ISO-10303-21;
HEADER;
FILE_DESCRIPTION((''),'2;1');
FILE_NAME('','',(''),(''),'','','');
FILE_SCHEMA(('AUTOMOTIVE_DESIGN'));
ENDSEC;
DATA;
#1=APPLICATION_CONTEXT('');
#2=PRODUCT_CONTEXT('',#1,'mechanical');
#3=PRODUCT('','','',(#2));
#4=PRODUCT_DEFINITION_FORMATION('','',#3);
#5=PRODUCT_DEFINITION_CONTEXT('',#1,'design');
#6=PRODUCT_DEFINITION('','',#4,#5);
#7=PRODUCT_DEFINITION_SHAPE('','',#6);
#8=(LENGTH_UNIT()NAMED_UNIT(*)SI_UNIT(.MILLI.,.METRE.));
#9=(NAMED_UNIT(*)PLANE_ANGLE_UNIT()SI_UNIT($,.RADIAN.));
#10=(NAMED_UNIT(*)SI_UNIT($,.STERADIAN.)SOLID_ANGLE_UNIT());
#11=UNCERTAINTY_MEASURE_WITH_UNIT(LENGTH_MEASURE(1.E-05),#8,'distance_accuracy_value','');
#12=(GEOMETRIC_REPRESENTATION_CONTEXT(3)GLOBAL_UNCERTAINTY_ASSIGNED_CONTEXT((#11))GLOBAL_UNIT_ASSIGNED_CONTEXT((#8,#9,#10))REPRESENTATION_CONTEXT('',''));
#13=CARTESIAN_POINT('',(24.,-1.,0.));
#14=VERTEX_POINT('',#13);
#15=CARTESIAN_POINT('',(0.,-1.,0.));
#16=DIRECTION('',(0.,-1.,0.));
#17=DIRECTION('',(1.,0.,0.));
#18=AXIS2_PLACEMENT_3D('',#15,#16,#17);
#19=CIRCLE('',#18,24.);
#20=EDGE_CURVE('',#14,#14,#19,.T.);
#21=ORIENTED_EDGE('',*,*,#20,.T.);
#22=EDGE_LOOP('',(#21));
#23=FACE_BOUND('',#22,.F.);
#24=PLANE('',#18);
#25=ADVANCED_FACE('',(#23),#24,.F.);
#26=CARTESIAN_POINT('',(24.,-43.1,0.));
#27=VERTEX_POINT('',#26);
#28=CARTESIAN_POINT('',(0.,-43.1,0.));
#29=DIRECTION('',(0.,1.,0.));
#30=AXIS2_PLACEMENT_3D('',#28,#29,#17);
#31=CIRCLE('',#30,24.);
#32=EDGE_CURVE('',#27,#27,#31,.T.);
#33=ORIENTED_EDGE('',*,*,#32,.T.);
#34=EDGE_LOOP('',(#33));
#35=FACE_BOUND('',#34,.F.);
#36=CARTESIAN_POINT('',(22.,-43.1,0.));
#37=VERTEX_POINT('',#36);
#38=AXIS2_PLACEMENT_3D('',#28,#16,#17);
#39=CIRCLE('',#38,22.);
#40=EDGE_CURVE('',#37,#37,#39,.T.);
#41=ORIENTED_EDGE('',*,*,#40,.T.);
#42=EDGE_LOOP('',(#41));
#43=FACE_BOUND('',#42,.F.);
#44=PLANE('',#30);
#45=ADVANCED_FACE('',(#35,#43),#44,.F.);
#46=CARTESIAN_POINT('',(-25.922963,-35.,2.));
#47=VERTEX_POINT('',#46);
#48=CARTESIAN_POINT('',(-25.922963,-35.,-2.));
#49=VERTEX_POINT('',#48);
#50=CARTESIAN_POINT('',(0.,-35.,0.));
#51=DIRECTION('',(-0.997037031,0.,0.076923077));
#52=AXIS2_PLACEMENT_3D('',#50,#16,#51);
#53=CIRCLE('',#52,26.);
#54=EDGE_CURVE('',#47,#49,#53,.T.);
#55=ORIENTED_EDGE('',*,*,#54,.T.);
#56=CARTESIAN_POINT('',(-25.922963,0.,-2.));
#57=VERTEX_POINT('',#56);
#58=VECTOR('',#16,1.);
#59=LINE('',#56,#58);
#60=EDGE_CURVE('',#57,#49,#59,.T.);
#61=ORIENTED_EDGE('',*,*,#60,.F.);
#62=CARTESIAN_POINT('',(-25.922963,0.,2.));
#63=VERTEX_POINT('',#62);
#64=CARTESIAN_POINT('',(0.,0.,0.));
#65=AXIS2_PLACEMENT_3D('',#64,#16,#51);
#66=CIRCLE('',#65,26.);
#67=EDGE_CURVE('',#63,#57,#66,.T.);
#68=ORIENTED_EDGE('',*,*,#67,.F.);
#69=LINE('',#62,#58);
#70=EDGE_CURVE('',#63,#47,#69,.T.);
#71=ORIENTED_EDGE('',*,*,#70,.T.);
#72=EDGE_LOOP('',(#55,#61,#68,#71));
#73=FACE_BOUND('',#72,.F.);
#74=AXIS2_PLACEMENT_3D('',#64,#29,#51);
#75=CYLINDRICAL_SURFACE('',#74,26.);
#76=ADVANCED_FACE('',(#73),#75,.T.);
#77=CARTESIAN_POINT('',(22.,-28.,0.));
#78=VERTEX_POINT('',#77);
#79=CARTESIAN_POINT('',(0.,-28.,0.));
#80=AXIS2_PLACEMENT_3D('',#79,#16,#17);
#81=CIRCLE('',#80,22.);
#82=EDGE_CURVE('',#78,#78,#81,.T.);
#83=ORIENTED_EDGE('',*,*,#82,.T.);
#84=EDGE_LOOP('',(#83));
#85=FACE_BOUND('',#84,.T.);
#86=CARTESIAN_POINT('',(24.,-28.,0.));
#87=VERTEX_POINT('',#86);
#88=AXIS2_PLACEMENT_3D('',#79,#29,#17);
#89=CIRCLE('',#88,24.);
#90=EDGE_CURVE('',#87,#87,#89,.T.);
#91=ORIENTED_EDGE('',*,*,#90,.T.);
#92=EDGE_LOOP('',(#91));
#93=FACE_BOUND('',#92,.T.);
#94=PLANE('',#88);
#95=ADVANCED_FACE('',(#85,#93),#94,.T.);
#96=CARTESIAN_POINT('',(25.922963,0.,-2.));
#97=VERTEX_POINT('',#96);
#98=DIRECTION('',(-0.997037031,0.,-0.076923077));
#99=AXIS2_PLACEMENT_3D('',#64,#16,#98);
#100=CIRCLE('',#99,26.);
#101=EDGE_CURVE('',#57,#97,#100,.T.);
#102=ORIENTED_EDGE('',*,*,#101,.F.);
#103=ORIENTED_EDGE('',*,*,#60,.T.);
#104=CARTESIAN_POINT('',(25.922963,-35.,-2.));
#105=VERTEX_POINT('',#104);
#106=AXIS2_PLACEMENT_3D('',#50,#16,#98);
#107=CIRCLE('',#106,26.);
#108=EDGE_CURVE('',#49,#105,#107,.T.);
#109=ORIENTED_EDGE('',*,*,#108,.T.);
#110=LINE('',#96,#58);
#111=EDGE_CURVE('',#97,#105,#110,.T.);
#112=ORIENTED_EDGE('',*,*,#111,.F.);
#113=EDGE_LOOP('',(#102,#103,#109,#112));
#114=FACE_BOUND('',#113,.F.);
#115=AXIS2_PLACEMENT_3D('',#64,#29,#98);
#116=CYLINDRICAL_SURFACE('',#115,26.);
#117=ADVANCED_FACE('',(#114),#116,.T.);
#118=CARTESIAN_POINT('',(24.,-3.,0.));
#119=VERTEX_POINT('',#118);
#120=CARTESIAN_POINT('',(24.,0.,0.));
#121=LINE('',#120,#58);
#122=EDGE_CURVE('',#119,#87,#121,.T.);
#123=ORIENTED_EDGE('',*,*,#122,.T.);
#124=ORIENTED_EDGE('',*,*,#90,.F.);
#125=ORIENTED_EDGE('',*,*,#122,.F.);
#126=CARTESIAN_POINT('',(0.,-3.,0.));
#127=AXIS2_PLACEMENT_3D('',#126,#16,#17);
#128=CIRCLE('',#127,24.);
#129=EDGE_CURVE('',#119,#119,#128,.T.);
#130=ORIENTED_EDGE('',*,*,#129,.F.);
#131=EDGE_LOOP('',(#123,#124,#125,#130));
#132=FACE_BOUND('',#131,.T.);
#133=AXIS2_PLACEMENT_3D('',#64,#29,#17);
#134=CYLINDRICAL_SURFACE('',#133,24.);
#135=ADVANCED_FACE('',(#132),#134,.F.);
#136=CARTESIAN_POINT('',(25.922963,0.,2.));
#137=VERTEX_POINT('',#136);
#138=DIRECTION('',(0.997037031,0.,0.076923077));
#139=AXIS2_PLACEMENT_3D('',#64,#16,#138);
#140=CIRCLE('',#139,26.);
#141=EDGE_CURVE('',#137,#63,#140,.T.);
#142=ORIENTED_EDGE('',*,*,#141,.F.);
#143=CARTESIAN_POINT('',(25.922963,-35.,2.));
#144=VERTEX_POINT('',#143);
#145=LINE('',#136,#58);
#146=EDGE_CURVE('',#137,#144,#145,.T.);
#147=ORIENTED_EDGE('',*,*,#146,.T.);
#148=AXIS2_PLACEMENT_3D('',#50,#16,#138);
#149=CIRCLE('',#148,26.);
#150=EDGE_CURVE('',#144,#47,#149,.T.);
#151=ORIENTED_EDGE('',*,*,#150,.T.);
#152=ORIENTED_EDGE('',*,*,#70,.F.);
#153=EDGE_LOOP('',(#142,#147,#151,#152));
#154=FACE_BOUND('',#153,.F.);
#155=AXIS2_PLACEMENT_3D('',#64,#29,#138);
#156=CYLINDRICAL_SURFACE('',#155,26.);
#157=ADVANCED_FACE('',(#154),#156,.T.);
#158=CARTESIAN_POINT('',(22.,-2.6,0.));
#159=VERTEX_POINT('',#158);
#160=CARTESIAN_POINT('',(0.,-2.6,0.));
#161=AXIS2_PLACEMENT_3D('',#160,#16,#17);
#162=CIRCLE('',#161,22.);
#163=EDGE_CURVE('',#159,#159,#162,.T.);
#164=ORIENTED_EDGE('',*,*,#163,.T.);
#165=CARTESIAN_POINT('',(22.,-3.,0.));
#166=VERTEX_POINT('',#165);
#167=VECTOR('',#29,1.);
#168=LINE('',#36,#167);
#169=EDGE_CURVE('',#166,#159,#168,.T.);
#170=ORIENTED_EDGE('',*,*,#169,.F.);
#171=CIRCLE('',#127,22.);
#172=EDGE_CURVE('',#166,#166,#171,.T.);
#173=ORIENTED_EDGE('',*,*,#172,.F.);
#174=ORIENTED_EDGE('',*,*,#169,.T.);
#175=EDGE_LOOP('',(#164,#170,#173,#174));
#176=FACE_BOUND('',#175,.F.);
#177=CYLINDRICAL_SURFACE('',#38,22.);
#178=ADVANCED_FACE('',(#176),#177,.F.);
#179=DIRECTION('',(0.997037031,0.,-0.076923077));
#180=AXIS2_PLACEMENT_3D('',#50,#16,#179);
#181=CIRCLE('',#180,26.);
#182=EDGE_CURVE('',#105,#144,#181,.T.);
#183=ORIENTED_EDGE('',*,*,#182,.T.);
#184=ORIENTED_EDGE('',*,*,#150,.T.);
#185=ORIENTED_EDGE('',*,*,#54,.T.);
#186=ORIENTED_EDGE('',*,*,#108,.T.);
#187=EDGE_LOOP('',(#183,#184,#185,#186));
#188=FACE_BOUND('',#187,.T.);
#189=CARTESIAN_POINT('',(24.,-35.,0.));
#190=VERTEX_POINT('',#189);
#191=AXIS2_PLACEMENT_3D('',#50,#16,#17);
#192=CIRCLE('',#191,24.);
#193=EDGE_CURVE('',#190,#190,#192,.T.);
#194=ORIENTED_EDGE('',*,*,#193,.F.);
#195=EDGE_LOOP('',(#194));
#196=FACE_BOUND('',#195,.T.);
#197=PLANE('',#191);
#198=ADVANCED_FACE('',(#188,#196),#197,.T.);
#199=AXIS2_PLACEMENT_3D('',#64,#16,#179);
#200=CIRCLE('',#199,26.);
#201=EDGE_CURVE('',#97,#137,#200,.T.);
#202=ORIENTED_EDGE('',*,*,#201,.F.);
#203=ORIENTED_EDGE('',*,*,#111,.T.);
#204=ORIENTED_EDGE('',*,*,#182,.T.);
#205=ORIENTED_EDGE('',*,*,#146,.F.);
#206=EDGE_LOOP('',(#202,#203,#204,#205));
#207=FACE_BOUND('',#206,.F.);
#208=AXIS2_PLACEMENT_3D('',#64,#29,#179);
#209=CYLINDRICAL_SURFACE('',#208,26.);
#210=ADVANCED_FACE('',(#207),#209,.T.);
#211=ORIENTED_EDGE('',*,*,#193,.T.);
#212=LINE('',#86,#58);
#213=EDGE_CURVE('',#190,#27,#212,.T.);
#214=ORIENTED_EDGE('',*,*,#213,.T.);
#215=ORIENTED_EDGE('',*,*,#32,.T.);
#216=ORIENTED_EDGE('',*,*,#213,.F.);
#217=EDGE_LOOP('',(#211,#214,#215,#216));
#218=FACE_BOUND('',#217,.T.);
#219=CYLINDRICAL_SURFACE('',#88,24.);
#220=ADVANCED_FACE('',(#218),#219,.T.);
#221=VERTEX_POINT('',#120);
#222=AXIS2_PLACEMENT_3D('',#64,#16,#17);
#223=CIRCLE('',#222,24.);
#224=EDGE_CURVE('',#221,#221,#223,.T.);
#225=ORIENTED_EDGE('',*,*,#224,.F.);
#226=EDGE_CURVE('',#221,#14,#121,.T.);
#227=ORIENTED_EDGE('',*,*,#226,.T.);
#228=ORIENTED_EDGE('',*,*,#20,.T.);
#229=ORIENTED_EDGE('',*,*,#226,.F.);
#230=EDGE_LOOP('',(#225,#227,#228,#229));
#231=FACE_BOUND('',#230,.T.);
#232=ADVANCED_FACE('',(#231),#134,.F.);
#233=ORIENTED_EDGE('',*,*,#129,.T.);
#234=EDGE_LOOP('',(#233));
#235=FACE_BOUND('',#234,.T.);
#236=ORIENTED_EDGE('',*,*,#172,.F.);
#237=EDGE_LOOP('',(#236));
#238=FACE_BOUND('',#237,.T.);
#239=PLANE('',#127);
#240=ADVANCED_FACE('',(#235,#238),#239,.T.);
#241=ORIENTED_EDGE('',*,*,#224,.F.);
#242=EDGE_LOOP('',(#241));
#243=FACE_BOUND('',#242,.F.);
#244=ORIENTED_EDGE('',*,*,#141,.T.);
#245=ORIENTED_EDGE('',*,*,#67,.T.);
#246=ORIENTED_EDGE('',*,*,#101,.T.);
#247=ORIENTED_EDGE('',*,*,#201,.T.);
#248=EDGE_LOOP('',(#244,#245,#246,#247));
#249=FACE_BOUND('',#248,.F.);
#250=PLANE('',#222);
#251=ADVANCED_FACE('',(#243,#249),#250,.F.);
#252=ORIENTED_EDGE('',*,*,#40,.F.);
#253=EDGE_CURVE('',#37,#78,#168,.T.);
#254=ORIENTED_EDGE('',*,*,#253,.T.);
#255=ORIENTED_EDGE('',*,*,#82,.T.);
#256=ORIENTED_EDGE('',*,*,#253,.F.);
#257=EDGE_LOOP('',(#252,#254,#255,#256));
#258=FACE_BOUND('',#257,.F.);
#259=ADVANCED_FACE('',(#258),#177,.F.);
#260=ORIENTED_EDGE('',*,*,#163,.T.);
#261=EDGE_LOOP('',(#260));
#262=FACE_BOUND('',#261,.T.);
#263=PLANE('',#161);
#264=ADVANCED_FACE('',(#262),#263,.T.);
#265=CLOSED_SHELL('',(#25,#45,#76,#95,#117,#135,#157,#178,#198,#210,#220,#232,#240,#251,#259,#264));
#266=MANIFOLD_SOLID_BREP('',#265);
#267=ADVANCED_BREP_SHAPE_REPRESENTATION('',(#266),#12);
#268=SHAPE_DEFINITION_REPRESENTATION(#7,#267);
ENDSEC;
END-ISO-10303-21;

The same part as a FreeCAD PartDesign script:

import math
import FreeCAD as App
import Part
import Sketcher

doc = App.newDocument("Part")
params = doc.addObject("Spreadsheet::Sheet", "Params")
for row, (alias, value) in enumerate([
    ("sketch1_diameter", "48 mm"),
    ("sketch1_radius", "26 mm"),
    ("pad1_length", "35 mm"),
    ("sketch2_diameter", "48 mm"),
    ("pad2_length", "2 mm"),
    ("sketch3_diameter", "48 mm"),
    ("pad3_length", "15.1 mm"),
    ("sketch4_diameter", "44 mm"),
    ("pocket1_length", "40.5 mm"),
], start=1):
    params.set(f"A{row}", alias)
    params.set(f"B{row}", "=" + value)
    params.setAlias(f"B{row}", alias)

body = doc.addObject("PartDesign::Body", "Body")

# Sketch on XZ plane
sketch1 = doc.addObject("Sketcher::SketchObject", "Sketch")
body.addObject(sketch1)
sketch1.AttachmentSupport = (doc.XZ_Plane, [""])
sketch1.MapMode = "FlatFace"
sketch1.addGeometry([
    Part.ArcOfCircle(Part.Circle(App.Vector(0, 0, 0), App.Vector(0, 0, 1), 26), math.radians(175.59), math.radians(184.41)),  # 0
    Part.ArcOfCircle(Part.Circle(App.Vector(0, 0, 0), App.Vector(0, 0, 1), 26), math.radians(-176), math.radians(-4)),  # 1
    Part.ArcOfCircle(Part.Circle(App.Vector(0, 0, 0), App.Vector(0, 0, 1), 26), math.radians(-4.41), math.radians(4.41)),  # 2
    Part.ArcOfCircle(Part.Circle(App.Vector(0, 0, 0), App.Vector(0, 0, 1), 26), math.radians(4), math.radians(176)),  # 3
    Part.Circle(App.Vector(0, 0, 0), App.Vector(0, 0, 1), 24),  # 4
], False)
sketch1.addConstraint([
    Sketcher.Constraint("Tangent", 0, 2, 1, 1),
    Sketcher.Constraint("Tangent", 1, 2, 2, 1),
    Sketcher.Constraint("Tangent", 2, 2, 3, 1),
    Sketcher.Constraint("Tangent", 3, 2, 0, 1),
    Sketcher.Constraint("Coincident", 0, 3, -1, 1),
    Sketcher.Constraint("Coincident", 4, 3, -1, 1),
    Sketcher.Constraint("Equal", 0, 1),
    Sketcher.Constraint("Horizontal", 0, 2, 1, 2),
    Sketcher.Constraint("Horizontal", 2, 2, 3, 2),
    Sketcher.Constraint("Vertical", 1, 2, 2, 2),
    Sketcher.Constraint("Diameter", 4, 48.0),
    Sketcher.Constraint("Radius", 0, 26.0),
    Sketcher.Constraint("DistanceY", 0, 2, -1, 1, 2.0),
])
sketch1.setExpression("Constraints[10]", "Params.sketch1_diameter")
sketch1.setExpression("Constraints[11]", "Params.sketch1_radius")
pad1 = doc.addObject("PartDesign::Pad", "Pad")
body.addObject(pad1)
pad1.Profile = sketch1
pad1.setExpression("Length", "Params.pad1_length")

# Sketch on XZ plane
sketch2 = doc.addObject("Sketcher::SketchObject", "Sketch001")
body.addObject(sketch2)
sketch2.AttachmentSupport = (doc.XZ_Plane, [""])
sketch2.MapMode = "FlatFace"
sketch2.AttachmentOffset = App.Placement(App.Vector(0, 0, 1), App.Rotation())
sketch2.addGeometry(Part.Circle(App.Vector(0, 0, 0), App.Vector(0, 0, 1), 24), False)
sketch2.addConstraint([
    Sketcher.Constraint("Coincident", 0, 3, -1, 1),
    Sketcher.Constraint("Diameter", 0, 48.0),
])
sketch2.setExpression("Constraints[1]", "Params.sketch2_diameter")
pad2 = doc.addObject("PartDesign::Pad", "Pad001")
body.addObject(pad2)
pad2.Profile = sketch2
pad2.setExpression("Length", "Params.pad2_length")

# Sketch on XZ plane
sketch3 = doc.addObject("Sketcher::SketchObject", "Sketch002")
body.addObject(sketch3)
sketch3.AttachmentSupport = (doc.XZ_Plane, [""])
sketch3.MapMode = "FlatFace"
sketch3.AttachmentOffset = App.Placement(App.Vector(0, 0, 28), App.Rotation())
sketch3.addGeometry(Part.Circle(App.Vector(0, 0, 0), App.Vector(0, 0, 1), 24), False)
sketch3.addConstraint([
    Sketcher.Constraint("Coincident", 0, 3, -1, 1),
    Sketcher.Constraint("Diameter", 0, 48.0),
])
sketch3.setExpression("Constraints[1]", "Params.sketch3_diameter")
pad3 = doc.addObject("PartDesign::Pad", "Pad002")
body.addObject(pad3)
pad3.Profile = sketch3
pad3.setExpression("Length", "Params.pad3_length")

# Sketch on XZ plane
sketch4 = doc.addObject("Sketcher::SketchObject", "Sketch003")
body.addObject(sketch4)
sketch4.AttachmentSupport = (doc.XZ_Plane, [""])
sketch4.MapMode = "FlatFace"
sketch4.AttachmentOffset = App.Placement(App.Vector(0, 0, 43.1), App.Rotation())
sketch4.addGeometry(Part.Circle(App.Vector(0, 0, 0), App.Vector(0, 0, 1), 22), False)
sketch4.addConstraint([
    Sketcher.Constraint("Coincident", 0, 3, -1, 1),
    Sketcher.Constraint("Diameter", 0, 44.0),
])
sketch4.setExpression("Constraints[1]", "Params.sketch4_diameter")
pocket1 = doc.addObject("PartDesign::Pocket", "Pocket")
body.addObject(pocket1)
pocket1.Profile = sketch4
pocket1.setExpression("Length", "Params.pocket1_length")

doc.recompute()
